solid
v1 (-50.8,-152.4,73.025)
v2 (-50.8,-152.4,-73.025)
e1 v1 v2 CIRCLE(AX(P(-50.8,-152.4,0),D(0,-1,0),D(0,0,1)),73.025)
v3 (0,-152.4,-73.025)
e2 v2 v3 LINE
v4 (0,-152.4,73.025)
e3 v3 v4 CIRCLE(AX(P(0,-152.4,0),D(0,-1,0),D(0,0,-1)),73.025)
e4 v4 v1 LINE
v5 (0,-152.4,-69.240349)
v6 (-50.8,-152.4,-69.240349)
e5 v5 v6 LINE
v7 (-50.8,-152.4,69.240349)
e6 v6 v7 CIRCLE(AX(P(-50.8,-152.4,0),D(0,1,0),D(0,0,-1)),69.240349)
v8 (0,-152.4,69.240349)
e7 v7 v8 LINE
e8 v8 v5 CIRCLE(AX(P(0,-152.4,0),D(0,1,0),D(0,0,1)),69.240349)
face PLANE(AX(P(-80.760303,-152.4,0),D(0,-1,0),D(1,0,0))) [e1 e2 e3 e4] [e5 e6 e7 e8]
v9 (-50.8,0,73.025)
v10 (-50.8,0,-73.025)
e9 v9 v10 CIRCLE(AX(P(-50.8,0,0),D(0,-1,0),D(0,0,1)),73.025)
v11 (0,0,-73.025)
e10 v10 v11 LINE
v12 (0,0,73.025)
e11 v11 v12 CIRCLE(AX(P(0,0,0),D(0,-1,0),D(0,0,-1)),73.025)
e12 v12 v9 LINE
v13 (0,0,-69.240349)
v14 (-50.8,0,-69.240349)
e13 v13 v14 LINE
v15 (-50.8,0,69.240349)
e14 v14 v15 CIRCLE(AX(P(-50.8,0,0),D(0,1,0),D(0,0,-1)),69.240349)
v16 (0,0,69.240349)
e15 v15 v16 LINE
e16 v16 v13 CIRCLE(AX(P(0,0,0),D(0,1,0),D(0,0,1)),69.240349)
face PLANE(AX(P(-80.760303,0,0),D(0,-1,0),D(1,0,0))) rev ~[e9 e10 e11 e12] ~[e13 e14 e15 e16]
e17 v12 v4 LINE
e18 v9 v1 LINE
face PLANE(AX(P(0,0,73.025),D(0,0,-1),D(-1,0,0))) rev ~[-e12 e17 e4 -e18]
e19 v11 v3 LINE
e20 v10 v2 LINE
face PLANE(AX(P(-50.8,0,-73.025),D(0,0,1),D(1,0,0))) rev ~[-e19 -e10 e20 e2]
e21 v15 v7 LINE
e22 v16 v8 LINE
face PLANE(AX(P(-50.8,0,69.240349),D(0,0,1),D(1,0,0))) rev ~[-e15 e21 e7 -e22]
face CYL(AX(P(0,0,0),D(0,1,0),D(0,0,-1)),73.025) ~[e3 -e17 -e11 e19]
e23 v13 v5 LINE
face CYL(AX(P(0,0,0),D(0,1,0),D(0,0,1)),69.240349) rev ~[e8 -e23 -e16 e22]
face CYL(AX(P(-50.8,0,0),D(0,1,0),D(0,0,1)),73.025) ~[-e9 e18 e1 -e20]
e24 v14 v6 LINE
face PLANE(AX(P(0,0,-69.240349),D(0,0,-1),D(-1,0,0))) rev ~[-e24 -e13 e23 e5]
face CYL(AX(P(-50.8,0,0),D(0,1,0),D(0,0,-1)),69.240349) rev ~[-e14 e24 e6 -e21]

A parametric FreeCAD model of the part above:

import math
import FreeCAD as App
import Part
import Sketcher

V = App.Vector
Q = App.Units.Quantity

doc = App.newDocument("Part")
body = doc.addObject("PartDesign::Body", "Body")

# Sketch on XZ plane
sketch1 = doc.addObject("Sketcher::SketchObject", "Sketch")
body.addObject(sketch1)
sketch1.AttachmentSupport = (doc.XZ_Plane, [""])
sketch1.MapMode = "FlatFace"
sketch1.addGeometry(Part.LineSegment(V(-51, -73, 0), V(0, -73, 0)), False)
sketch1.addGeometry(Part.ArcOfCircle(Part.Circle(V(0, 0, 0), V(0, 0, 1), 73), math.radians(-90), math.radians(90)), False)
sketch1.addGeometry(Part.LineSegment(V(0, 73, 0), V(-51, 73, 0)), False)
sketch1.addGeometry(Part.ArcOfCircle(Part.Circle(V(-51, 0, 0), V(0, 0, 1), 73), math.radians(90), math.radians(270)), False)
sketch1.addGeometry(Part.ArcOfCircle(Part.Circle(V(-51, 0, 0), V(0, 0, 1), 69), math.radians(90), math.radians(270)), False)
sketch1.addGeometry(Part.LineSegment(V(-51, 69, 0), V(0, 69, 0)), False)
sketch1.addGeometry(Part.ArcOfCircle(Part.Circle(V(0, 0, 0), V(0, 0, 1), 69), math.radians(-90), math.radians(90)), False)
sketch1.addGeometry(Part.LineSegment(V(0, -69, 0), V(-51, -69, 0)), False)
sketch1.addConstraint(Sketcher.Constraint("Tangent", 0, 2, 1, 1))
sketch1.addConstraint(Sketcher.Constraint("Tangent", 1, 2, 2, 1))
sketch1.addConstraint(Sketcher.Constraint("Tangent", 2, 2, 3, 1))
sketch1.addConstraint(Sketcher.Constraint("Tangent", 3, 2, 0, 1))
sketch1.addConstraint(Sketcher.Constraint("Tangent", 4, 1, 5, 1))
sketch1.addConstraint(Sketcher.Constraint("Tangent", 5, 2, 6, 2))
sketch1.addConstraint(Sketcher.Constraint("Tangent", 6, 1, 7, 1))
sketch1.addConstraint(Sketcher.Constraint("Tangent", 7, 2, 4, 2))
sketch1.addConstraint(Sketcher.Constraint("Horizontal", 0))
sketch1.addConstraint(Sketcher.Constraint("Horizontal", 2))
sketch1.addConstraint(Sketcher.Constraint("Horizontal", 5))
sketch1.addConstraint(Sketcher.Constraint("Horizontal", 7))
sketch1.addConstraint(Sketcher.Constraint("Coincident", 1, 3, -1, 1))
sketch1.addConstraint(Sketcher.Constraint("Coincident", 6, 3, -1, 1))
sketch1.addConstraint(Sketcher.Constraint("Vertical", 4, 3, 2, 2))
sketch1.addConstraint(Sketcher.Constraint("DistanceX", 0, 1, 0, 2, Q("2 in")))
sketch1.addConstraint(Sketcher.Constraint("Radius", 1, Q("2.875 in")))
sketch1.addConstraint(Sketcher.Constraint("Radius", 4, 69.240349))
pad1 = doc.addObject("PartDesign::Pad", "Pad")
body.addObject(pad1)
pad1.Profile = sketch1
pad1.Length = Q("6 in")

doc.recompute()
